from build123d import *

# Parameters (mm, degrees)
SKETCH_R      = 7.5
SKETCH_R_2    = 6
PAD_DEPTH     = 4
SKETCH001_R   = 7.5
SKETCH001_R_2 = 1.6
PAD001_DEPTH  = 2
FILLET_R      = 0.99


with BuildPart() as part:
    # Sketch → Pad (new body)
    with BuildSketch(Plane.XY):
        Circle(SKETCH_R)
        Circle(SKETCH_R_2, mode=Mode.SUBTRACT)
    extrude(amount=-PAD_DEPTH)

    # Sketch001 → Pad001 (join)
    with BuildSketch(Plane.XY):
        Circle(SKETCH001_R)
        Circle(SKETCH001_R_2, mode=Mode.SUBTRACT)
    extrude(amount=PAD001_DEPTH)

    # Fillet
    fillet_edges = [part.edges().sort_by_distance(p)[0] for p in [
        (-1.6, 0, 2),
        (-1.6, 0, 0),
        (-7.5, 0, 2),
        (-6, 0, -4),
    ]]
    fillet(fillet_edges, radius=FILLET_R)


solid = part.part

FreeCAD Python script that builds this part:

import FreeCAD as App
import Part
import Sketcher


def edges_at(feature, points):
    """Names of the edges that pass closest to the given points."""
    edges = feature.Shape.Edges
    near = lambda p: min(range(len(edges)), key=lambda i: edges[i].distToShape(Part.Vertex(*p))[0])
    return sorted({f"Edge{near(p) + 1}" for p in points})

doc = App.newDocument("Part")
body = doc.addObject("PartDesign::Body", "Body")

sketch1 = body.newObject("Sketcher::SketchObject", "Sketch")
sketch1.AttachmentSupport = (doc.getObject("XY_Plane"), [""])
sketch1.MapMode = "FlatFace"
sketch1.addGeometry([
    Part.Circle(App.Vector(0, 0, 0), App.Vector(0, 0, 1), 8),
    Part.Circle(App.Vector(0, 0, 0), App.Vector(0, 0, 1), 6),
], False)
sketch1.addConstraint([
    Sketcher.Constraint("Coincident", 0, 3, -1, 1),
    Sketcher.Constraint("Coincident", 1, 3, -1, 1),
    Sketcher.Constraint("Diameter", 0, 15.0),
    Sketcher.Constraint("Diameter", 1, 12.0),
])
pad1 = body.newObject("PartDesign::Pad", "Pad")
pad1.Profile = sketch1
pad1.Length = 4
pad1.Reversed = True

sketch2 = body.newObject("Sketcher::SketchObject", "Sketch001")
sketch2.AttachmentSupport = (doc.getObject("XY_Plane"), [""])
sketch2.MapMode = "FlatFace"
sketch2.addGeometry([
    Part.Circle(App.Vector(0, 0, 0), App.Vector(0, 0, 1), 7.5),
    Part.Circle(App.Vector(0, 0, 0), App.Vector(0, 0, 1), 1.6),
], False)
sketch2.addConstraint([
    Sketcher.Constraint("Coincident", 0, 3, -1, 1),
    Sketcher.Constraint("Coincident", 1, 3, -1, 1),
    Sketcher.Constraint("Diameter", 0, 15.0),
    Sketcher.Constraint("Diameter", 1, 3.2),
])
pad2 = body.newObject("PartDesign::Pad", "Pad001")
pad2.Profile = sketch2
pad2.Length = 2
doc.recompute()

fillet = body.newObject("PartDesign::Fillet", "Fillet")
fillet.Base = (pad2, edges_at(pad2, [
    (-1.6, 0, 2),
    (-1.6, 0, 0),
    (-7.5, 0, 2),
    (-6, 0, -4),
]))
fillet.Radius = 0.99

doc.recompute()
